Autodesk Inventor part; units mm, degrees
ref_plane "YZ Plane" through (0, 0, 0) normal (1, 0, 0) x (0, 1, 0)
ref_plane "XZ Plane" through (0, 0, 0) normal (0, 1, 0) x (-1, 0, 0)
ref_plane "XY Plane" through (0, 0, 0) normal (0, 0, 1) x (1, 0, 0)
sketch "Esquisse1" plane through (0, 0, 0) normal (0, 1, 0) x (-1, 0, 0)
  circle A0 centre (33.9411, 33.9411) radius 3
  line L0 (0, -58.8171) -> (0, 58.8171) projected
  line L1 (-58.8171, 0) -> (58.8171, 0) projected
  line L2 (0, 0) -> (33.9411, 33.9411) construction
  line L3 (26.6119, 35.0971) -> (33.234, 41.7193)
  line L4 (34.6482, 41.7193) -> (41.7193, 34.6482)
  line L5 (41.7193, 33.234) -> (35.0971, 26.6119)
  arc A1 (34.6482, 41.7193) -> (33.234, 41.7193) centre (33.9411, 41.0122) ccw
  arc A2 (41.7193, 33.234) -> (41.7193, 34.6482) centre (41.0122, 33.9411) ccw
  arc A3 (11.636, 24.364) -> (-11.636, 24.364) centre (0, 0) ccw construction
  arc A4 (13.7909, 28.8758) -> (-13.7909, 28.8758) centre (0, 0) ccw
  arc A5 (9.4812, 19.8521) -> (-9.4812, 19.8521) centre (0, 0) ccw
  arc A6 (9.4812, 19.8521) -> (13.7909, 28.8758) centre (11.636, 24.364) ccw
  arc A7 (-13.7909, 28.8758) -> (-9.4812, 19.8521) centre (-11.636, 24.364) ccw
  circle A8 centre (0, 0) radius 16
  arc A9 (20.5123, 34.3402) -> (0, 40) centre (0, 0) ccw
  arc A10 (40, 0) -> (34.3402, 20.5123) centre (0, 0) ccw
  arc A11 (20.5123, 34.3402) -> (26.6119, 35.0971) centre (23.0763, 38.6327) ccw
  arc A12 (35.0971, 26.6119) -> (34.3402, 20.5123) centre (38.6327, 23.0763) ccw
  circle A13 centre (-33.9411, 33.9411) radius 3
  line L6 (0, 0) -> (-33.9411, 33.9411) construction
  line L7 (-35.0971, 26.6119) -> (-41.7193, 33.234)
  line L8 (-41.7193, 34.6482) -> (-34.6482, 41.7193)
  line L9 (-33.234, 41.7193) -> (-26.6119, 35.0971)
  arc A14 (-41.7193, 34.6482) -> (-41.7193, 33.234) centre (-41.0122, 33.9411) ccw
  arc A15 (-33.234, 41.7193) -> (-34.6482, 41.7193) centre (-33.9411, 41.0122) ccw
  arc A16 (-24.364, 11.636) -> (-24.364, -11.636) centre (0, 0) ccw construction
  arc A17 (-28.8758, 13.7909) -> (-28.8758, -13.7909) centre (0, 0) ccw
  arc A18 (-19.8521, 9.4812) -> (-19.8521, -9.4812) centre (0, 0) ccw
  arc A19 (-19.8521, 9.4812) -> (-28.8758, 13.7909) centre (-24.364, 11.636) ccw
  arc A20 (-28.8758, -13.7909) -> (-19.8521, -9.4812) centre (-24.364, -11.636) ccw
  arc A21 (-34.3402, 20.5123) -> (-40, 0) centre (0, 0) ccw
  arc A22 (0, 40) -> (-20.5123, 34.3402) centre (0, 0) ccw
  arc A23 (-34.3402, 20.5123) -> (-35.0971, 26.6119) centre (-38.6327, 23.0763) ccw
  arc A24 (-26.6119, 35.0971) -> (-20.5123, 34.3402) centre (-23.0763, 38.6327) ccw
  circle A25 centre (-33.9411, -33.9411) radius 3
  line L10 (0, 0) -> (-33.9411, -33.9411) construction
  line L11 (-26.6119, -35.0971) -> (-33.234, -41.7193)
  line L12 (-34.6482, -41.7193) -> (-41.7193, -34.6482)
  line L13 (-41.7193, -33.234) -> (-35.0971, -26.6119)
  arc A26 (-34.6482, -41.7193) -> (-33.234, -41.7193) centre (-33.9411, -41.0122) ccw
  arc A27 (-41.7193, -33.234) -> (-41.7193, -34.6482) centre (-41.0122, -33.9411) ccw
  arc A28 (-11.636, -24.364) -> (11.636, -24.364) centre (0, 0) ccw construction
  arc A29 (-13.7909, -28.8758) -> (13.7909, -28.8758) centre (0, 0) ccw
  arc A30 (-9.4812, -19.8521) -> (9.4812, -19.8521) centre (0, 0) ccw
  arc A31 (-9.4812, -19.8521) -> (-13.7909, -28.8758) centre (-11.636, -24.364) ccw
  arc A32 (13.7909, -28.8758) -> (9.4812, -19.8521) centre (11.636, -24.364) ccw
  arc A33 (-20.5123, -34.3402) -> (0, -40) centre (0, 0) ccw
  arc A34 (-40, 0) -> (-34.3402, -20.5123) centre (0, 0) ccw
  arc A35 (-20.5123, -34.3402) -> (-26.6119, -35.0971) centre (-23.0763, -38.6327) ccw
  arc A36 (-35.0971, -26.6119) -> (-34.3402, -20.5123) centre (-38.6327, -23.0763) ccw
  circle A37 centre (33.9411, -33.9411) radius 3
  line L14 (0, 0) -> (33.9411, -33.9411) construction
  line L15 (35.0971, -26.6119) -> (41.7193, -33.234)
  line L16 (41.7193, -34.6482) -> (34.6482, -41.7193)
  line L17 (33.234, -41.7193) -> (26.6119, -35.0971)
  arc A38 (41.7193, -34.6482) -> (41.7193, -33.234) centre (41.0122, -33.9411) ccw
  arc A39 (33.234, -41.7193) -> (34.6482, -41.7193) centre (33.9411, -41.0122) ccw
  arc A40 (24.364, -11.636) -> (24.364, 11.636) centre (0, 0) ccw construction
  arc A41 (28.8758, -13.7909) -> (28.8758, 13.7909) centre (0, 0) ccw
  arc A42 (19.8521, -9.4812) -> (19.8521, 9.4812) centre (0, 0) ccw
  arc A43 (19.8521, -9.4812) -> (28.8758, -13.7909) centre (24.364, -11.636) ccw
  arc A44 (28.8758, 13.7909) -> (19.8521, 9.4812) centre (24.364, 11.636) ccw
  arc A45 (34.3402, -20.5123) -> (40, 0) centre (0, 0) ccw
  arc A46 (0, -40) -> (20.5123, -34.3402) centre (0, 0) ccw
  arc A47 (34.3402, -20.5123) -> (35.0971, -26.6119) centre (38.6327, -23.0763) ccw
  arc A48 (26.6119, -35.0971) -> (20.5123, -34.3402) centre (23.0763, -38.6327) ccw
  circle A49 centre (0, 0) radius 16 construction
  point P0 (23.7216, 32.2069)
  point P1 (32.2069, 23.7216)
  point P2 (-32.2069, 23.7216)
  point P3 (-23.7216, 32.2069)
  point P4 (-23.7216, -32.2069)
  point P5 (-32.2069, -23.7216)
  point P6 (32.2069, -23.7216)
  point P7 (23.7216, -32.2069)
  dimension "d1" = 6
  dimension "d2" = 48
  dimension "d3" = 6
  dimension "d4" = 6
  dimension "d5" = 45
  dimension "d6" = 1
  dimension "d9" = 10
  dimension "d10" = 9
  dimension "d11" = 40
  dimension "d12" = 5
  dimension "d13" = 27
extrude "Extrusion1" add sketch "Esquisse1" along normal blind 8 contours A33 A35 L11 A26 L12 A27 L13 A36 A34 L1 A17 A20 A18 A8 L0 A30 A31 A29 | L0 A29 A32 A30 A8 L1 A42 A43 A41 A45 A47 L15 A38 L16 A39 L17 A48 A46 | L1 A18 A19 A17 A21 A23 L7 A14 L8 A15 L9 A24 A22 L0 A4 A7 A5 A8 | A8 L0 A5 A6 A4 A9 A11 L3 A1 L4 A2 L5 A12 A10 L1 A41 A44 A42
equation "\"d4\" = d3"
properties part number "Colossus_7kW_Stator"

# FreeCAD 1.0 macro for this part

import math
import FreeCAD as App
import Part
import Sketcher
from FreeCAD import Vector
Q = App.Units.Quantity

doc = App.newDocument("Part")
body = doc.addObject("PartDesign::Body", "Body")

# Sketch on XZ plane
sketch1 = body.newObject("Sketcher::SketchObject", "Sketch")
sketch1.AttachmentSupport = (doc.getObject("XZ_Plane"), [""])
sketch1.MapMode = "FlatFace"
sketch1.addGeometry([
    Part.ArcOfCircle(Part.Circle(Vector(0, 0, 0), Vector(0, 0, 1), 40), math.radians(-90), math.radians(-59)),  # 0
    Part.ArcOfCircle(Part.Circle(Vector(0, 0, 0), Vector(0, 0, 1), 40), math.radians(-121), math.radians(-90)),  # 1
    Part.ArcOfCircle(Part.Circle(Vector(-23.1, -38.6, 0), Vector(0, 0, 1), 5), math.radians(59), math.radians(135)),  # 2
    Part.LineSegment(Vector(-26.6, -35.1, 0), Vector(-33.2, -41.7, 0)),  # 3
    Part.ArcOfCircle(Part.Circle(Vector(-33.9, -41, 0), Vector(0, 0, 1), 1), math.radians(-135), math.radians(-45)),  # 4
    Part.LineSegment(Vector(-34.6, -41.7, 0), Vector(-41.7, -34.6, 0)),  # 5
    Part.ArcOfCircle(Part.Circle(Vector(-41, -33.9, 0), Vector(0, 0, 1), 1), math.radians(135), math.radians(225)),  # 6
    Part.LineSegment(Vector(-41.7, -33.2, 0), Vector(-35.1, -26.6, 0)),  # 7
    Part.ArcOfCircle(Part.Circle(Vector(-38.6, -23.1, 0), Vector(0, 0, 1), 5), math.radians(-45), math.radians(31)),  # 8
    Part.ArcOfCircle(Part.Circle(Vector(0, 0, 0), Vector(0, 0, 1), 40), math.radians(180), math.radians(211)),  # 9
    Part.ArcOfCircle(Part.Circle(Vector(0, 0, 0), Vector(0, 0, 1), 40), math.radians(149), math.radians(180)),  # 10
    Part.ArcOfCircle(Part.Circle(Vector(-38.6, 23.1, 0), Vector(0, 0, 1), 5), math.radians(-31), math.radians(45)),  # 11
    Part.LineSegment(Vector(-35.1, 26.6, 0), Vector(-41.7, 33.2, 0)),  # 12
    Part.ArcOfCircle(Part.Circle(Vector(-41, 33.9, 0), Vector(0, 0, 1), 1), math.radians(135), math.radians(225)),  # 13
    Part.LineSegment(Vector(-41.7, 34.6, 0), Vector(-34.6, 41.7, 0)),  # 14
    Part.ArcOfCircle(Part.Circle(Vector(-33.9, 41, 0), Vector(0, 0, 1), 1), math.radians(45), math.radians(135)),  # 15
    Part.LineSegment(Vector(-33.2, 41.7, 0), Vector(-26.6, 35.1, 0)),  # 16
    Part.ArcOfCircle(Part.Circle(Vector(-23.1, 38.6, 0), Vector(0, 0, 1), 5), math.radians(-135), math.radians(-59)),  # 17
    Part.ArcOfCircle(Part.Circle(Vector(0, 0, 0), Vector(0, 0, 1), 40), math.radians(90), math.radians(121)),  # 18
    Part.ArcOfCircle(Part.Circle(Vector(0, 0, 0), Vector(0, 0, 1), 40), math.radians(59), math.radians(90)),  # 19
    Part.ArcOfCircle(Part.Circle(Vector(23.1, 38.6, 0), Vector(0, 0, 1), 5), math.radians(-121), math.radians(-45)),  # 20
    Part.LineSegment(Vector(26.6, 35.1, 0), Vector(33.2, 41.7, 0)),  # 21
    Part.ArcOfCircle(Part.Circle(Vector(33.9, 41, 0), Vector(0, 0, 1), 1), math.radians(45), math.radians(135)),  # 22
    Part.LineSegment(Vector(34.6, 41.7, 0), Vector(41.7, 34.6, 0)),  # 23
    Part.ArcOfCircle(Part.Circle(Vector(41, 33.9, 0), Vector(0, 0, 1), 1), math.radians(-45), math.radians(45)),  # 24
    Part.LineSegment(Vector(41.7, 33.2, 0), Vector(35.1, 26.6, 0)),  # 25
    Part.ArcOfCircle(Part.Circle(Vector(38.6, 23.1, 0), Vector(0, 0, 1), 5), math.radians(135), math.radians(211)),  # 26
    Part.ArcOfCircle(Part.Circle(Vector(0, 0, 0), Vector(0, 0, 1), 40), math.radians(0), math.radians(31)),  # 27
    Part.ArcOfCircle(Part.Circle(Vector(0, 0, 0), Vector(0, 0, 1), 40), math.radians(-31), math.radians(0)),  # 28
    Part.ArcOfCircle(Part.Circle(Vector(38.6, -23.1, 0), Vector(0, 0, 1), 5), math.radians(149), math.radians(225)),  # 29
    Part.LineSegment(Vector(35.1, -26.6, 0), Vector(41.7, -33.2, 0)),  # 30
    Part.ArcOfCircle(Part.Circle(Vector(41, -33.9, 0), Vector(0, 0, 1), 1), math.radians(-45), math.radians(45)),  # 31
    Part.LineSegment(Vector(41.7, -34.6, 0), Vector(34.6, -41.7, 0)),  # 32
    Part.ArcOfCircle(Part.Circle(Vector(33.9, -41, 0), Vector(0, 0, 1), 1), math.radians(-135), math.radians(-45)),  # 33
    Part.LineSegment(Vector(33.2, -41.7, 0), Vector(26.6, -35.1, 0)),  # 34
    Part.ArcOfCircle(Part.Circle(Vector(23.1, -38.6, 0), Vector(0, 0, 1), 5), math.radians(45), math.radians(121)),  # 35
    Part.ArcOfCircle(Part.Circle(Vector(0, 0, 0), Vector(0, 0, 1), 32), math.radians(-26), math.radians(26)),  # 36
    Part.ArcOfCircle(Part.Circle(Vector(24.4, 11.6, 0), Vector(0, 0, 1), 5), math.radians(26), math.radians(206)),  # 37
    Part.ArcOfCircle(Part.Circle(Vector(0, 0, 0), Vector(0, 0, 1), 22), math.radians(-26), math.radians(26)),  # 38
    Part.ArcOfCircle(Part.Circle(Vector(24.4, -11.6, 0), Vector(0, 0, 1), 5), math.radians(154), math.radians(334)),  # 39
    Part.Circle(Vector(0, 0, 0), Vector(0, 0, 1), 16),  # 40
    Part.ArcOfCircle(Part.Circle(Vector(0, 0, 0), Vector(0, 0, 1), 22), math.radians(-116), math.radians(-64)),  # 41
    Part.ArcOfCircle(Part.Circle(Vector(-11.6, -24.4, 0), Vector(0, 0, 1), 5), math.radians(64), math.radians(244)),  # 42
    Part.ArcOfCircle(Part.Circle(Vector(0, 0, 0), Vector(0, 0, 1), 32), math.radians(-116), math.radians(-64)),  # 43
    Part.ArcOfCircle(Part.Circle(Vector(11.6, -24.4, 0), Vector(0, 0, 1), 5), math.radians(-64), math.radians(116)),  # 44
    Part.Circle(Vector(33.9, -33.9, 0), Vector(0, 0, 1), 3),  # 45
    Part.Circle(Vector(33.9, 33.9, 0), Vector(0, 0, 1), 3),  # 46
    Part.ArcOfCircle(Part.Circle(Vector(0, 0, 0), Vector(0, 0, 1), 32), math.radians(64), math.radians(116)),  # 47
    Part.ArcOfCircle(Part.Circle(Vector(-11.6, 24.4, 0), Vector(0, 0, 1), 5), math.radians(116), math.radians(296)),  # 48
    Part.ArcOfCircle(Part.Circle(Vector(0, 0, 0), Vector(0, 0, 1), 22), math.radians(64), math.radians(116)),  # 49
    Part.ArcOfCircle(Part.Circle(Vector(11.6, 24.4, 0), Vector(0, 0, 1), 5), math.radians(-116), math.radians(64)),  # 50
    Part.Circle(Vector(-33.9, -33.9, 0), Vector(0, 0, 1), 3),  # 51
    Part.ArcOfCircle(Part.Circle(Vector(0, 0, 0), Vector(0, 0, 1), 22), math.radians(154), math.radians(206)),  # 52
    Part.ArcOfCircle(Part.Circle(Vector(-24.4, 11.6, 0), Vector(0, 0, 1), 5), math.radians(-26), math.radians(154)),  # 53
    Part.ArcOfCircle(Part.Circle(Vector(0, 0, 0), Vector(0, 0, 1), 32), math.radians(154), math.radians(206)),  # 54
    Part.ArcOfCircle(Part.Circle(Vector(-24.4, -11.6, 0), Vector(0, 0, 1), 5), math.radians(-154), math.radians(26)),  # 55
    Part.Circle(Vector(-33.9, 33.9, 0), Vector(0, 0, 1), 3),  # 56
], False)
sketch1.addConstraint([
    Sketcher.Constraint("Tangent", 0, 1, 1, 2),
    Sketcher.Constraint("Tangent", 1, 1, 2, 1),
    Sketcher.Constraint("Tangent", 2, 2, 3, 1),
    Sketcher.Constraint("Tangent", 3, 2, 4, 2),
    Sketcher.Constraint("Tangent", 4, 1, 5, 1),
    Sketcher.Constraint("Tangent", 5, 2, 6, 2),
    Sketcher.Constraint("Tangent", 6, 1, 7, 1),
    Sketcher.Constraint("Tangent", 7, 2, 8, 1),
    Sketcher.Constraint("Tangent", 8, 2, 9, 2),
    Sketcher.Constraint("Tangent", 9, 1, 10, 2),
    Sketcher.Constraint("Tangent", 10, 1, 11, 1),
    Sketcher.Constraint("Tangent", 11, 2, 12, 1),
    Sketcher.Constraint("Tangent", 12, 2, 13, 2),
    Sketcher.Constraint("Tangent", 13, 1, 14, 1),
    Sketcher.Constraint("Tangent", 14, 2, 15, 2),
    Sketcher.Constraint("Tangent", 15, 1, 16, 1),
    Sketcher.Constraint("Tangent", 16, 2, 17, 1),
    Sketcher.Constraint("Tangent", 17, 2, 18, 2),
    Sketcher.Constraint("Tangent", 18, 1, 19, 2),
    Sketcher.Constraint("Tangent", 19, 1, 20, 1),
    Sketcher.Constraint("Tangent", 20, 2, 21, 1),
    Sketcher.Constraint("Tangent", 21, 2, 22, 2),
    Sketcher.Constraint("Tangent", 22, 1, 23, 1),
    Sketcher.Constraint("Tangent", 23, 2, 24, 2),
    Sketcher.Constraint("Tangent", 24, 1, 25, 1),
    Sketcher.Constraint("Tangent", 25, 2, 26, 1),
    Sketcher.Constraint("Tangent", 26, 2, 27, 2),
    Sketcher.Constraint("Tangent", 27, 1, 28, 2),
    Sketcher.Constraint("Tangent", 28, 1, 29, 1),
    Sketcher.Constraint("Tangent", 29, 2, 30, 1),
    Sketcher.Constraint("Tangent", 30, 2, 31, 2),
    Sketcher.Constraint("Tangent", 31, 1, 32, 1),
    Sketcher.Constraint("Tangent", 32, 2, 33, 2),
    Sketcher.Constraint("Tangent", 33, 1, 34, 1),
    Sketcher.Constraint("Tangent", 34, 2, 35, 1),
    Sketcher.Constraint("Tangent", 35, 2, 0, 2),
    Sketcher.Constraint("Tangent", 36, 2, 37, 1),
    Sketcher.Constraint("Tangent", 37, 2, 38, 2),
    Sketcher.Constraint("Tangent", 38, 1, 39, 1),
    Sketcher.Constraint("Tangent", 39, 2, 36, 1),
    Sketcher.Constraint("Tangent", 41, 1, 42, 1),
    Sketcher.Constraint("Tangent", 42, 2, 43, 1),
    Sketcher.Constraint("Tangent", 43, 2, 44, 1),
    Sketcher.Constraint("Tangent", 44, 2, 41, 2),
    Sketcher.Constraint("Tangent", 47, 2, 48, 1),
    Sketcher.Constraint("Tangent", 48, 2, 49, 2),
    Sketcher.Constraint("Tangent", 49, 1, 50, 1),
    Sketcher.Constraint("Tangent", 50, 2, 47, 1),
    Sketcher.Constraint("Tangent", 52, 1, 53, 1),
    Sketcher.Constraint("Tangent", 53, 2, 54, 1),
    Sketcher.Constraint("Tangent", 54, 2, 55, 1),
    Sketcher.Constraint("Tangent", 55, 2, 52, 2),
    Sketcher.Constraint("Coincident", 0, 3, -1, 1),
    Sketcher.Constraint("Coincident", 9, 3, -1, 1),
    Sketcher.Constraint("Coincident", 18, 3, -1, 1),
    Sketcher.Constraint("Coincident", 27, 3, -1, 1),
    Sketcher.Constraint("Coincident", 36, 3, -1, 1),
    Sketcher.Constraint("Coincident", 38, 3, -1, 1),
    Sketcher.Constraint("Coincident", 40, 3, -1, 1),
    Sketcher.Constraint("Coincident", 41, 3, -1, 1),
    Sketcher.Constraint("Coincident", 43, 3, -1, 1),
    Sketcher.Constraint("Coincident", 47, 3, -1, 1),
    Sketcher.Constraint("Coincident", 49, 3, -1, 1),
    Sketcher.Constraint("Coincident", 52, 3, -1, 1),
    Sketcher.Constraint("Coincident", 54, 3, -1, 1),
    Sketcher.Constraint("Equal", 0, 1),
    Sketcher.Constraint("Equal", 4, 6),
    Sketcher.Constraint("Equal", 2, 8),
    Sketcher.Constraint("Equal", 1, 9),
    Sketcher.Constraint("Equal", 9, 10),
    Sketcher.Constraint("Equal", 8, 11),
    Sketcher.Constraint("Equal", 6, 13),
    Sketcher.Constraint("Equal", 13, 15),
    Sketcher.Constraint("Equal", 11, 17),
    Sketcher.Constraint("Equal", 10, 18),
    Sketcher.Constraint("Equal", 18, 19),
    Sketcher.Constraint("Equal", 17, 20),
    Sketcher.Constraint("Equal", 15, 22),
    Sketcher.Constraint("Equal", 22, 24),
    Sketcher.Constraint("Equal", 20, 26),
    Sketcher.Constraint("Equal", 19, 27),
    Sketcher.Constraint("Equal", 27, 28),
    Sketcher.Constraint("Equal", 26, 29),
    Sketcher.Constraint("Equal", 24, 31),
    Sketcher.Constraint("Equal", 31, 33),
    Sketcher.Constraint("Equal", 29, 35),
    Sketcher.Constraint("Equal", 35, 37),
    Sketcher.Constraint("Equal", 38, 41),
    Sketcher.Constraint("Equal", 39, 42),
    Sketcher.Constraint("Equal", 45, 46),
    Sketcher.Constraint("Equal", 43, 47),
    Sketcher.Constraint("Equal", 44, 48),
    Sketcher.Constraint("Equal", 46, 51),
    Sketcher.Constraint("Equal", 49, 52),
    Sketcher.Constraint("Equal", 50, 53),
    Sketcher.Constraint("Equal", 51, 56),
    Sketcher.Constraint("Symmetric", 4, 3, 22, 3, -1, 1),
    Sketcher.Constraint("Symmetric", 6, 3, 24, 3, -1, 1),
    Sketcher.Constraint("Symmetric", 13, 3, 31, 3, -1, 1),
    Sketcher.Constraint("Symmetric", 15, 3, 33, 3, -1, 1),
    Sketcher.Constraint("Symmetric", 46, 3, 51, 3, -1, 1),
    Sketcher.Constraint("Symmetric", 45, 3, 56, 3, -1, 1),
    Sketcher.Constraint("Symmetric", 15, 3, 22, 3, -2),
    Sketcher.Constraint("Symmetric", 13, 3, 24, 3, -2),
    Sketcher.Constraint("Symmetric", 45, 3, 51, 3, -2),
    Sketcher.Constraint("PointOnObject", 0, 1, -2),
    Sketcher.Constraint("PointOnObject", 9, 1, -1),
    Sketcher.Constraint("PointOnObject", 18, 1, -2),
    Sketcher.Constraint("PointOnObject", 27, 1, -1),
    Sketcher.Constraint("Perpendicular", 3, 5),
    Sketcher.Constraint("Perpendicular", 5, 7),
    Sketcher.Constraint("Perpendicular", 7, 12),
    Sketcher.Constraint("Perpendicular", 12, 14),
    Sketcher.Constraint("Perpendicular", 14, 16),
    Sketcher.Constraint("Perpendicular", 16, 21),
    Sketcher.Constraint("Perpendicular", 23, 25),
    Sketcher.Constraint("Perpendicular", 25, 30),
    Sketcher.Constraint("Perpendicular", 32, 34),
    Sketcher.Constraint("Horizontal", 42, 3, 44, 3),
    Sketcher.Constraint("Horizontal", 31, 3, 45, 3),
    Sketcher.Constraint("Horizontal", 48, 3, 50, 3),
    Sketcher.Constraint("Horizontal", 37, 3, 53, 3),
    Sketcher.Constraint("Horizontal", 39, 3, 55, 3),
    Sketcher.Constraint("Vertical", 37, 3, 39, 3),
    Sketcher.Constraint("Vertical", 33, 3, 45, 3),
    Sketcher.Constraint("Vertical", 42, 3, 48, 3),
    Sketcher.Constraint("Equal", 3, 7),
    Sketcher.Constraint("Diameter", 45, Q("6 mm")),
    Sketcher.Constraint("Radius", 0, Q("40 mm")),
    Sketcher.Constraint("Radius", 2, Q("5 mm")),
    Sketcher.Constraint("Radius", 4, Q("1 mm")),
    Sketcher.Constraint("Distance", 5, Q("10 mm")),
    Sketcher.Constraint("Diameter", 40, Q("32 mm")),
    Sketcher.Constraint("Radius", 36, Q("32 mm")),
    Sketcher.Constraint("DistanceX", 4, 3, -1, 1, Q("33.941 mm")),
    Sketcher.Constraint("DistanceX", -1, 1, 37, 3, Q("24.364 mm")),
    Sketcher.Constraint("DistanceX", 42, 3, -1, 1, Q("11.636 mm")),
])
pad1 = body.newObject("PartDesign::Pad", "Pad")
pad1.Profile = sketch1
pad1.Length = 8
pad1.Reversed = True

doc.recompute()
